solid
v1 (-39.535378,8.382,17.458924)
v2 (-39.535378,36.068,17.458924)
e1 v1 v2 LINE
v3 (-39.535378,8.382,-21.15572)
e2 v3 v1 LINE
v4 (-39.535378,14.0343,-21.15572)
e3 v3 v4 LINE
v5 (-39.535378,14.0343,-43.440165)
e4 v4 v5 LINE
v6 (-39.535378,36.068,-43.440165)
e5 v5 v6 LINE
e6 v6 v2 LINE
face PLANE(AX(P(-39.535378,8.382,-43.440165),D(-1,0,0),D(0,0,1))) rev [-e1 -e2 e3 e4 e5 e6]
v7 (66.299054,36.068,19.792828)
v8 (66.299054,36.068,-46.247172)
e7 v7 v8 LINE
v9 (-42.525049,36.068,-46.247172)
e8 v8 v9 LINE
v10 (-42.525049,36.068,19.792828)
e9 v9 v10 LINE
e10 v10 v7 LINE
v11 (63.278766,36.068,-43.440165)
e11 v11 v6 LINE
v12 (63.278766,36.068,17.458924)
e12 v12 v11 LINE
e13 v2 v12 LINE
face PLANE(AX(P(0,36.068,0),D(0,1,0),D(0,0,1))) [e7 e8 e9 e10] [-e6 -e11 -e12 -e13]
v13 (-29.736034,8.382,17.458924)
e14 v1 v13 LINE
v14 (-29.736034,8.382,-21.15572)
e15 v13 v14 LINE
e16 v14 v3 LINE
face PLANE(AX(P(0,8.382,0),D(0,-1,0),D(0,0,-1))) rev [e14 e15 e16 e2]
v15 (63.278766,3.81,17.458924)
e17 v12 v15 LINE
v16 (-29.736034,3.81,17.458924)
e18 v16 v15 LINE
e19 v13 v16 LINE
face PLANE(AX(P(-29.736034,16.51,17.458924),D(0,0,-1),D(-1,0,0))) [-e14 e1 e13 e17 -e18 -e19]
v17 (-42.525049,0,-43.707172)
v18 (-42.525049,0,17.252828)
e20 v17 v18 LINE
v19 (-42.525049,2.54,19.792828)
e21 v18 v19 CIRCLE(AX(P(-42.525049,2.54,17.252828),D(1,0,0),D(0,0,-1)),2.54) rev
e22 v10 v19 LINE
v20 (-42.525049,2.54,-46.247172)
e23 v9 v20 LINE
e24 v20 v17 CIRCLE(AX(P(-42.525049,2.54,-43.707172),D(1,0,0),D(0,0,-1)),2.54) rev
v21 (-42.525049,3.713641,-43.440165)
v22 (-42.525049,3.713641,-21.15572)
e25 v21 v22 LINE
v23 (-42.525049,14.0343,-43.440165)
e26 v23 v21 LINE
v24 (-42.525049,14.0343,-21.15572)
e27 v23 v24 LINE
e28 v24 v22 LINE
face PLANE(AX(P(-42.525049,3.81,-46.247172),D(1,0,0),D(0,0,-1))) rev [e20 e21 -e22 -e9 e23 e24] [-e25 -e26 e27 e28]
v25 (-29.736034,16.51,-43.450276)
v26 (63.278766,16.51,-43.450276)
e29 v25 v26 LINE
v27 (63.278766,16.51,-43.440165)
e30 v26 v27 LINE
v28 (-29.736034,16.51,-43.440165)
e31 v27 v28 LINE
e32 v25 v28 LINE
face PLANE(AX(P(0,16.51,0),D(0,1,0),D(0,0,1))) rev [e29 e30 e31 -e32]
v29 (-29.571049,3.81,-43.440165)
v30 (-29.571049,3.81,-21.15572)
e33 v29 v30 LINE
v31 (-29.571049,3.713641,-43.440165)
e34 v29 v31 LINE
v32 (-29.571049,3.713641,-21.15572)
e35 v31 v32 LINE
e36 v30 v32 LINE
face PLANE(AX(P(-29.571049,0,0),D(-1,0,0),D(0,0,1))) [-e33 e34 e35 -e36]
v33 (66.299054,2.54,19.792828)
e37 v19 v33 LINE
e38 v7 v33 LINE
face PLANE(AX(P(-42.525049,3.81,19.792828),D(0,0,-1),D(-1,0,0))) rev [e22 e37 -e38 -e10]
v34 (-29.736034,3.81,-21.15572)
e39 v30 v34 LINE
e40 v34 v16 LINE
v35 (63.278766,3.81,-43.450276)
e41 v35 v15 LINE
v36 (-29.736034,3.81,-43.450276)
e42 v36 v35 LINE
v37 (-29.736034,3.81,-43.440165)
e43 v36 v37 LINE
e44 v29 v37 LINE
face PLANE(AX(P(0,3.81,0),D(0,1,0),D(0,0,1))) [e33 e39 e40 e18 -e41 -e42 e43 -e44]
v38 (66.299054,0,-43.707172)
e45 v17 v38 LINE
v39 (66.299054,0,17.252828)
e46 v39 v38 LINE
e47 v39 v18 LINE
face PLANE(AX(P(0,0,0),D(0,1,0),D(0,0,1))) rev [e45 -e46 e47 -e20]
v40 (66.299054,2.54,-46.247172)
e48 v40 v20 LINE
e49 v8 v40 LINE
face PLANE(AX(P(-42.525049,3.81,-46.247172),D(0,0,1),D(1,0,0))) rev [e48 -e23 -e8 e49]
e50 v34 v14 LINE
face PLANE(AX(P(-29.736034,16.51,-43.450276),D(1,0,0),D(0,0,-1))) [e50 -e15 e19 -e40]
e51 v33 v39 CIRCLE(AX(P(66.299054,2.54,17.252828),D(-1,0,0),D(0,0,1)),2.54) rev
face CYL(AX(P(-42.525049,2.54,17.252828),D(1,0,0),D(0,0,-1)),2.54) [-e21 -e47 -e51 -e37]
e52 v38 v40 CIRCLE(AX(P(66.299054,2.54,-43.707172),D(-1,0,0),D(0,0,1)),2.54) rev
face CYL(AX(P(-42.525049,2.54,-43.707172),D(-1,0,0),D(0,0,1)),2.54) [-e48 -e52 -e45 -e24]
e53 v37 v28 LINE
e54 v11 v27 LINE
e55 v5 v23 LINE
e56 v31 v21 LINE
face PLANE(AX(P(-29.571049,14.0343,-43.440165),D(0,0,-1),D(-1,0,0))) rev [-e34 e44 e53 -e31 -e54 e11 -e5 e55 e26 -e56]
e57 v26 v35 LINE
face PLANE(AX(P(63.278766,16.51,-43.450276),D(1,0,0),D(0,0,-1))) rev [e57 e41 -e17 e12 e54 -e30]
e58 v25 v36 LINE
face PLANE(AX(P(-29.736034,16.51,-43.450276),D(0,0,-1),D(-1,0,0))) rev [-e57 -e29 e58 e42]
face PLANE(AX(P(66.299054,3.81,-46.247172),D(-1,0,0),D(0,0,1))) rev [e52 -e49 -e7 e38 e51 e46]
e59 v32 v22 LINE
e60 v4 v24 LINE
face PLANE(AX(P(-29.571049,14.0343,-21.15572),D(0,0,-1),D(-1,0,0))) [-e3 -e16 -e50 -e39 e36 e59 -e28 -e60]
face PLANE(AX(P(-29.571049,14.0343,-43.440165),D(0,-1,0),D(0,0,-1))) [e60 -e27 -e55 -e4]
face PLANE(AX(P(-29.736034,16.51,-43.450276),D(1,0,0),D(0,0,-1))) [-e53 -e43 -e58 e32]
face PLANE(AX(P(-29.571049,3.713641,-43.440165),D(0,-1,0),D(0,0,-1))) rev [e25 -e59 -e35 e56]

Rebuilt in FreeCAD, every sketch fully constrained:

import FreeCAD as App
import Part
import Sketcher

V = App.Vector
Q = App.Units.Quantity


def edges_at(feature, points):
    """Names of the edges that pass closest to the given points."""
    edges = feature.Shape.Edges
    near = lambda p: min(range(len(edges)), key=lambda i: edges[i].distToShape(Part.Vertex(*p))[0])
    return sorted({f"Edge{near(p) + 1}" for p in points})

doc = App.newDocument("Part")
body = doc.addObject("PartDesign::Body", "Body")

# Sketch on XZ plane
sketch1 = body.newObject("Sketcher::SketchObject", "Sketch")
sketch1.AttachmentSupport = (doc.getObject("XZ_Plane"), [""])
sketch1.MapMode = "FlatFace"
sketch1.addGeometry([
    Part.LineSegment(V(-43, -46, 0), V(-43, 20, 0)),
    Part.LineSegment(V(-43, 20, 0), V(66, 20, 0)),
    Part.LineSegment(V(66, 20, 0), V(66, -46, 0)),
    Part.LineSegment(V(66, -46, 0), V(-43, -46, 0)),
], False)
sketch1.addConstraint([
    Sketcher.Constraint("Coincident", 0, 2, 1, 1),
    Sketcher.Constraint("Coincident", 1, 2, 2, 1),
    Sketcher.Constraint("Coincident", 2, 2, 3, 1),
    Sketcher.Constraint("Coincident", 3, 2, 0, 1),
    Sketcher.Constraint("Vertical", 0),
    Sketcher.Constraint("Horizontal", 1),
    Sketcher.Constraint("Vertical", 2),
    Sketcher.Constraint("Horizontal", 3),
    Sketcher.Constraint("DistanceY", 0, 1, 0, 2, Q("2.6 in")),
    Sketcher.Constraint("DistanceX", 1, 1, 1, 2, 108.824103),
    Sketcher.Constraint("DistanceX", 0, 2, -1, 1, 42.525049),
    Sketcher.Constraint("DistanceY", -1, 1, 0, 2, 19.792828),
])
pad1 = body.newObject("PartDesign::Pad", "Pad")
pad1.Profile = sketch1
pad1.Length = Q("0.15 in")
pad1.Reversed = True

# Sketch on XZ plane
sketch2 = body.newObject("Sketcher::SketchObject", "Sketch001")
sketch2.AttachmentSupport = (doc.getObject("XZ_Plane"), [""])
sketch2.MapMode = "FlatFace"
sketch2.AttachmentOffset = App.Placement(V(0, 0, -0.15 * 25.4), App.Rotation())
sketch2.addGeometry([
    Part.LineSegment(V(-43, -46, 0), V(-43, 20, 0)),  # 0
    Part.LineSegment(V(-43, 20, 0), V(66, 20, 0)),  # 1
    Part.LineSegment(V(66, 20, 0), V(66, -46, 0)),  # 2
    Part.LineSegment(V(66, -46, 0), V(-43, -46, 0)),  # 3
    Part.LineSegment(V(63, 17, 0), V(-30, 17, 0)),  # 4
    Part.LineSegment(V(-30, 17, 0), V(-30, -43, 0)),  # 5
    Part.LineSegment(V(-30, -43, 0), V(63, -43, 0)),  # 6
    Part.LineSegment(V(63, -43, 0), V(63, 17, 0)),  # 7
], False)
sketch2.addConstraint([
    Sketcher.Constraint("Coincident", 0, 2, 1, 1),
    Sketcher.Constraint("Coincident", 1, 2, 2, 1),
    Sketcher.Constraint("Coincident", 2, 2, 3, 1),
    Sketcher.Constraint("Coincident", 3, 2, 0, 1),
    Sketcher.Constraint("Coincident", 4, 2, 5, 1),
    Sketcher.Constraint("Coincident", 5, 2, 6, 1),
    Sketcher.Constraint("Coincident", 6, 2, 7, 1),
    Sketcher.Constraint("Coincident", 7, 2, 4, 1),
    Sketcher.Constraint("Vertical", 0),
    Sketcher.Constraint("Horizontal", 1),
    Sketcher.Constraint("Vertical", 2),
    Sketcher.Constraint("Horizontal", 3),
    Sketcher.Constraint("Horizontal", 4),
    Sketcher.Constraint("Vertical", 5),
    Sketcher.Constraint("Horizontal", 6),
    Sketcher.Constraint("Vertical", 7),
    Sketcher.Constraint("DistanceY", 0, 1, 0, 2, Q("2.6 in")),
    Sketcher.Constraint("DistanceX", 4, 2, 4, 1, Q("3.662 in")),
    Sketcher.Constraint("DistanceY", 5, 2, 5, 1, Q("2.398 in")),
    Sketcher.Constraint("DistanceX", 1, 1, 1, 2, 108.824103),
    Sketcher.Constraint("DistanceX", 0, 2, -1, 1, 42.525049),
    Sketcher.Constraint("DistanceY", -1, 1, 0, 2, 19.792828),
    Sketcher.Constraint("DistanceX", 4, 2, -1, 1, 29.736034),
    Sketcher.Constraint("DistanceY", -1, 1, 4, 2, 17.458924),
])
pad2 = body.newObject("PartDesign::Pad", "Pad001")
pad2.Profile = sketch2
pad2.Length = Q("0.5 in")
pad2.Reversed = True

# Sketch on YZ plane
sketch3 = body.newObject("Sketcher::SketchObject", "Sketch002")
sketch3.AttachmentSupport = (doc.getObject("YZ_Plane"), [""])
sketch3.MapMode = "FlatFace"
sketch3.AttachmentOffset = App.Placement(V(0, 0, -42.525049), App.Rotation())
sketch3.addGeometry([
    Part.LineSegment(V(14, -43, 0), V(4, -43, 0)),
    Part.LineSegment(V(4, -43, 0), V(4, -21, 0)),
    Part.LineSegment(V(4, -21, 0), V(14, -21, 0)),
    Part.LineSegment(V(14, -21, 0), V(14, -43, 0)),
], False)
sketch3.addConstraint([
    Sketcher.Constraint("Coincident", 0, 2, 1, 1),
    Sketcher.Constraint("Coincident", 1, 2, 2, 1),
    Sketcher.Constraint("Coincident", 2, 2, 3, 1),
    Sketcher.Constraint("Coincident", 3, 2, 0, 1),
    Sketcher.Constraint("Horizontal", 0),
    Sketcher.Constraint("Vertical", 1),
    Sketcher.Constraint("Horizontal", 2),
    Sketcher.Constraint("Vertical", 3),
    Sketcher.Constraint("DistanceX", 0, 2, 0, 1, 10.320659),
    Sketcher.Constraint("DistanceX", -1, 1, 2, 2, 14.0343),
    Sketcher.Constraint("DistanceY", 1, 1, 1, 2, 22.284445),
    Sketcher.Constraint("DistanceY", 1, 2, -1, 1, 21.15572),
])
pocket1 = body.newObject("PartDesign::Pocket", "Pocket")
pocket1.Profile = sketch3
pocket1.Length = Q("0.51 in")
pocket1.Reversed = True
doc.recompute()

fillet = body.newObject("PartDesign::Fillet", "Fillet")
fillet.Base = (pocket1, edges_at(pocket1, [(11.887, 0, 19.793)]))
fillet.Radius = Q("0.1 in")
doc.recompute()

fillet2 = body.newObject("PartDesign::Fillet", "Fillet001")
fillet2.Base = (fillet, edges_at(fillet, [(11.887, 0, -46.247)]))
fillet2.Radius = Q("0.1 in")

# Sketch on XZ plane
sketch4 = body.newObject("Sketcher::SketchObject", "Sketch003")
sketch4.AttachmentSupport = (doc.getObject("XZ_Plane"), [""])
sketch4.MapMode = "FlatFace"
sketch4.AttachmentOffset = App.Placement(V(0, 0, -0.65 * 25.4), App.Rotation())
sketch4.addGeometry([
    Part.LineSegment(V(-40, -43, 0), V(-40, 17, 0)),
    Part.LineSegment(V(-40, 17, 0), V(-30, 17, 0)),
    Part.LineSegment(V(-30, 17, 0), V(-30, -43, 0)),
    Part.LineSegment(V(-30, -43, 0), V(-40, -43, 0)),
], False)
sketch4.addConstraint([
    Sketcher.Constraint("Coincident", 0, 2, 1, 1),
    Sketcher.Constraint("Coincident", 1, 2, 2, 1),
    Sketcher.Constraint("Coincident", 2, 2, 3, 1),
    Sketcher.Constraint("Coincident", 3, 2, 0, 1),
    Sketcher.Constraint("Vertical", 0),
    Sketcher.Constraint("Horizontal", 1),
    Sketcher.Constraint("Vertical", 2),
    Sketcher.Constraint("Horizontal", 3),
    Sketcher.Constraint("DistanceX", 1, 1, 1, 2, 9.964329),
    Sketcher.Constraint("DistanceY", 0, 1, 0, 2, 60.89909),
    Sketcher.Constraint("DistanceX", 1, 2, -1, 1, 29.571049),
    Sketcher.Constraint("DistanceY", -1, 1, 0, 2, 17.458924),
])
pocket2 = body.newObject("PartDesign::Pocket", "Pocket001")
pocket2.Profile = sketch4
pocket2.Length = Q("0.32 in")
pocket2.Reversed = True

# Sketch on XZ plane
sketch5 = body.newObject("Sketcher::SketchObject", "Sketch004")
sketch5.AttachmentSupport = (doc.getObject("XZ_Plane"), [""])
sketch5.MapMode = "FlatFace"
sketch5.AttachmentOffset = App.Placement(V(0, 0, -0.65 * 25.4), App.Rotation())
sketch5.addGeometry([
    Part.LineSegment(V(-43, -46, 0), V(-43, 20, 0)),  # 0
    Part.LineSegment(V(-43, 20, 0), V(66, 20, 0)),  # 1
    Part.LineSegment(V(66, 20, 0), V(66, -46, 0)),  # 2
    Part.LineSegment(V(66, -46, 0), V(-43, -46, 0)),  # 3
    Part.LineSegment(V(63, 17, 0), V(-40, 17, 0)),  # 4
    Part.LineSegment(V(-40, 17, 0), V(-40, -43, 0)),  # 5
    Part.LineSegment(V(-40, -43, 0), V(63, -43, 0)),  # 6
    Part.LineSegment(V(63, -43, 0), V(63, 17, 0)),  # 7
], False)
sketch5.addConstraint([
    Sketcher.Constraint("Coincident", 0, 2, 1, 1),
    Sketcher.Constraint("Coincident", 1, 2, 2, 1),
    Sketcher.Constraint("Coincident", 2, 2, 3, 1),
    Sketcher.Constraint("Coincident", 3, 2, 0, 1),
    Sketcher.Constraint("Coincident", 4, 2, 5, 1),
    Sketcher.Constraint("Coincident", 5, 2, 6, 1),
    Sketcher.Constraint("Coincident", 6, 2, 7, 1),
    Sketcher.Constraint("Coincident", 7, 2, 4, 1),
    Sketcher.Constraint("Vertical", 0),
    Sketcher.Constraint("Horizontal", 1),
    Sketcher.Constraint("Vertical", 2),
    Sketcher.Constraint("Horizontal", 3),
    Sketcher.Constraint("Horizontal", 4),
    Sketcher.Constraint("Vertical", 5),
    Sketcher.Constraint("Horizontal", 6),
    Sketcher.Constraint("Vertical", 7),
    Sketcher.Constraint("DistanceY", 0, 1, 0, 2, Q("2.6 in")),
    Sketcher.Constraint("DistanceY", 5, 2, 5, 1, 60.89909),
    Sketcher.Constraint("DistanceX", 1, 1, 1, 2, 108.824103),
    Sketcher.Constraint("DistanceX", 4, 2, 4, 1, 102.814144),
    Sketcher.Constraint("DistanceX", 0, 2, -1, 1, 42.525049),
    Sketcher.Constraint("DistanceY", -1, 1, 0, 2, 19.792828),
    Sketcher.Constraint("DistanceX", 0, 2, 4, 2, 2.989671),
    Sketcher.Constraint("DistanceY", -1, 1, 4, 2, 17.458924),
])
pad3 = body.newObject("PartDesign::Pad", "Pad002")
pad3.Profile = sketch5
pad3.Length = Q("0.77 in")
pad3.Reversed = True

doc.recompute()
